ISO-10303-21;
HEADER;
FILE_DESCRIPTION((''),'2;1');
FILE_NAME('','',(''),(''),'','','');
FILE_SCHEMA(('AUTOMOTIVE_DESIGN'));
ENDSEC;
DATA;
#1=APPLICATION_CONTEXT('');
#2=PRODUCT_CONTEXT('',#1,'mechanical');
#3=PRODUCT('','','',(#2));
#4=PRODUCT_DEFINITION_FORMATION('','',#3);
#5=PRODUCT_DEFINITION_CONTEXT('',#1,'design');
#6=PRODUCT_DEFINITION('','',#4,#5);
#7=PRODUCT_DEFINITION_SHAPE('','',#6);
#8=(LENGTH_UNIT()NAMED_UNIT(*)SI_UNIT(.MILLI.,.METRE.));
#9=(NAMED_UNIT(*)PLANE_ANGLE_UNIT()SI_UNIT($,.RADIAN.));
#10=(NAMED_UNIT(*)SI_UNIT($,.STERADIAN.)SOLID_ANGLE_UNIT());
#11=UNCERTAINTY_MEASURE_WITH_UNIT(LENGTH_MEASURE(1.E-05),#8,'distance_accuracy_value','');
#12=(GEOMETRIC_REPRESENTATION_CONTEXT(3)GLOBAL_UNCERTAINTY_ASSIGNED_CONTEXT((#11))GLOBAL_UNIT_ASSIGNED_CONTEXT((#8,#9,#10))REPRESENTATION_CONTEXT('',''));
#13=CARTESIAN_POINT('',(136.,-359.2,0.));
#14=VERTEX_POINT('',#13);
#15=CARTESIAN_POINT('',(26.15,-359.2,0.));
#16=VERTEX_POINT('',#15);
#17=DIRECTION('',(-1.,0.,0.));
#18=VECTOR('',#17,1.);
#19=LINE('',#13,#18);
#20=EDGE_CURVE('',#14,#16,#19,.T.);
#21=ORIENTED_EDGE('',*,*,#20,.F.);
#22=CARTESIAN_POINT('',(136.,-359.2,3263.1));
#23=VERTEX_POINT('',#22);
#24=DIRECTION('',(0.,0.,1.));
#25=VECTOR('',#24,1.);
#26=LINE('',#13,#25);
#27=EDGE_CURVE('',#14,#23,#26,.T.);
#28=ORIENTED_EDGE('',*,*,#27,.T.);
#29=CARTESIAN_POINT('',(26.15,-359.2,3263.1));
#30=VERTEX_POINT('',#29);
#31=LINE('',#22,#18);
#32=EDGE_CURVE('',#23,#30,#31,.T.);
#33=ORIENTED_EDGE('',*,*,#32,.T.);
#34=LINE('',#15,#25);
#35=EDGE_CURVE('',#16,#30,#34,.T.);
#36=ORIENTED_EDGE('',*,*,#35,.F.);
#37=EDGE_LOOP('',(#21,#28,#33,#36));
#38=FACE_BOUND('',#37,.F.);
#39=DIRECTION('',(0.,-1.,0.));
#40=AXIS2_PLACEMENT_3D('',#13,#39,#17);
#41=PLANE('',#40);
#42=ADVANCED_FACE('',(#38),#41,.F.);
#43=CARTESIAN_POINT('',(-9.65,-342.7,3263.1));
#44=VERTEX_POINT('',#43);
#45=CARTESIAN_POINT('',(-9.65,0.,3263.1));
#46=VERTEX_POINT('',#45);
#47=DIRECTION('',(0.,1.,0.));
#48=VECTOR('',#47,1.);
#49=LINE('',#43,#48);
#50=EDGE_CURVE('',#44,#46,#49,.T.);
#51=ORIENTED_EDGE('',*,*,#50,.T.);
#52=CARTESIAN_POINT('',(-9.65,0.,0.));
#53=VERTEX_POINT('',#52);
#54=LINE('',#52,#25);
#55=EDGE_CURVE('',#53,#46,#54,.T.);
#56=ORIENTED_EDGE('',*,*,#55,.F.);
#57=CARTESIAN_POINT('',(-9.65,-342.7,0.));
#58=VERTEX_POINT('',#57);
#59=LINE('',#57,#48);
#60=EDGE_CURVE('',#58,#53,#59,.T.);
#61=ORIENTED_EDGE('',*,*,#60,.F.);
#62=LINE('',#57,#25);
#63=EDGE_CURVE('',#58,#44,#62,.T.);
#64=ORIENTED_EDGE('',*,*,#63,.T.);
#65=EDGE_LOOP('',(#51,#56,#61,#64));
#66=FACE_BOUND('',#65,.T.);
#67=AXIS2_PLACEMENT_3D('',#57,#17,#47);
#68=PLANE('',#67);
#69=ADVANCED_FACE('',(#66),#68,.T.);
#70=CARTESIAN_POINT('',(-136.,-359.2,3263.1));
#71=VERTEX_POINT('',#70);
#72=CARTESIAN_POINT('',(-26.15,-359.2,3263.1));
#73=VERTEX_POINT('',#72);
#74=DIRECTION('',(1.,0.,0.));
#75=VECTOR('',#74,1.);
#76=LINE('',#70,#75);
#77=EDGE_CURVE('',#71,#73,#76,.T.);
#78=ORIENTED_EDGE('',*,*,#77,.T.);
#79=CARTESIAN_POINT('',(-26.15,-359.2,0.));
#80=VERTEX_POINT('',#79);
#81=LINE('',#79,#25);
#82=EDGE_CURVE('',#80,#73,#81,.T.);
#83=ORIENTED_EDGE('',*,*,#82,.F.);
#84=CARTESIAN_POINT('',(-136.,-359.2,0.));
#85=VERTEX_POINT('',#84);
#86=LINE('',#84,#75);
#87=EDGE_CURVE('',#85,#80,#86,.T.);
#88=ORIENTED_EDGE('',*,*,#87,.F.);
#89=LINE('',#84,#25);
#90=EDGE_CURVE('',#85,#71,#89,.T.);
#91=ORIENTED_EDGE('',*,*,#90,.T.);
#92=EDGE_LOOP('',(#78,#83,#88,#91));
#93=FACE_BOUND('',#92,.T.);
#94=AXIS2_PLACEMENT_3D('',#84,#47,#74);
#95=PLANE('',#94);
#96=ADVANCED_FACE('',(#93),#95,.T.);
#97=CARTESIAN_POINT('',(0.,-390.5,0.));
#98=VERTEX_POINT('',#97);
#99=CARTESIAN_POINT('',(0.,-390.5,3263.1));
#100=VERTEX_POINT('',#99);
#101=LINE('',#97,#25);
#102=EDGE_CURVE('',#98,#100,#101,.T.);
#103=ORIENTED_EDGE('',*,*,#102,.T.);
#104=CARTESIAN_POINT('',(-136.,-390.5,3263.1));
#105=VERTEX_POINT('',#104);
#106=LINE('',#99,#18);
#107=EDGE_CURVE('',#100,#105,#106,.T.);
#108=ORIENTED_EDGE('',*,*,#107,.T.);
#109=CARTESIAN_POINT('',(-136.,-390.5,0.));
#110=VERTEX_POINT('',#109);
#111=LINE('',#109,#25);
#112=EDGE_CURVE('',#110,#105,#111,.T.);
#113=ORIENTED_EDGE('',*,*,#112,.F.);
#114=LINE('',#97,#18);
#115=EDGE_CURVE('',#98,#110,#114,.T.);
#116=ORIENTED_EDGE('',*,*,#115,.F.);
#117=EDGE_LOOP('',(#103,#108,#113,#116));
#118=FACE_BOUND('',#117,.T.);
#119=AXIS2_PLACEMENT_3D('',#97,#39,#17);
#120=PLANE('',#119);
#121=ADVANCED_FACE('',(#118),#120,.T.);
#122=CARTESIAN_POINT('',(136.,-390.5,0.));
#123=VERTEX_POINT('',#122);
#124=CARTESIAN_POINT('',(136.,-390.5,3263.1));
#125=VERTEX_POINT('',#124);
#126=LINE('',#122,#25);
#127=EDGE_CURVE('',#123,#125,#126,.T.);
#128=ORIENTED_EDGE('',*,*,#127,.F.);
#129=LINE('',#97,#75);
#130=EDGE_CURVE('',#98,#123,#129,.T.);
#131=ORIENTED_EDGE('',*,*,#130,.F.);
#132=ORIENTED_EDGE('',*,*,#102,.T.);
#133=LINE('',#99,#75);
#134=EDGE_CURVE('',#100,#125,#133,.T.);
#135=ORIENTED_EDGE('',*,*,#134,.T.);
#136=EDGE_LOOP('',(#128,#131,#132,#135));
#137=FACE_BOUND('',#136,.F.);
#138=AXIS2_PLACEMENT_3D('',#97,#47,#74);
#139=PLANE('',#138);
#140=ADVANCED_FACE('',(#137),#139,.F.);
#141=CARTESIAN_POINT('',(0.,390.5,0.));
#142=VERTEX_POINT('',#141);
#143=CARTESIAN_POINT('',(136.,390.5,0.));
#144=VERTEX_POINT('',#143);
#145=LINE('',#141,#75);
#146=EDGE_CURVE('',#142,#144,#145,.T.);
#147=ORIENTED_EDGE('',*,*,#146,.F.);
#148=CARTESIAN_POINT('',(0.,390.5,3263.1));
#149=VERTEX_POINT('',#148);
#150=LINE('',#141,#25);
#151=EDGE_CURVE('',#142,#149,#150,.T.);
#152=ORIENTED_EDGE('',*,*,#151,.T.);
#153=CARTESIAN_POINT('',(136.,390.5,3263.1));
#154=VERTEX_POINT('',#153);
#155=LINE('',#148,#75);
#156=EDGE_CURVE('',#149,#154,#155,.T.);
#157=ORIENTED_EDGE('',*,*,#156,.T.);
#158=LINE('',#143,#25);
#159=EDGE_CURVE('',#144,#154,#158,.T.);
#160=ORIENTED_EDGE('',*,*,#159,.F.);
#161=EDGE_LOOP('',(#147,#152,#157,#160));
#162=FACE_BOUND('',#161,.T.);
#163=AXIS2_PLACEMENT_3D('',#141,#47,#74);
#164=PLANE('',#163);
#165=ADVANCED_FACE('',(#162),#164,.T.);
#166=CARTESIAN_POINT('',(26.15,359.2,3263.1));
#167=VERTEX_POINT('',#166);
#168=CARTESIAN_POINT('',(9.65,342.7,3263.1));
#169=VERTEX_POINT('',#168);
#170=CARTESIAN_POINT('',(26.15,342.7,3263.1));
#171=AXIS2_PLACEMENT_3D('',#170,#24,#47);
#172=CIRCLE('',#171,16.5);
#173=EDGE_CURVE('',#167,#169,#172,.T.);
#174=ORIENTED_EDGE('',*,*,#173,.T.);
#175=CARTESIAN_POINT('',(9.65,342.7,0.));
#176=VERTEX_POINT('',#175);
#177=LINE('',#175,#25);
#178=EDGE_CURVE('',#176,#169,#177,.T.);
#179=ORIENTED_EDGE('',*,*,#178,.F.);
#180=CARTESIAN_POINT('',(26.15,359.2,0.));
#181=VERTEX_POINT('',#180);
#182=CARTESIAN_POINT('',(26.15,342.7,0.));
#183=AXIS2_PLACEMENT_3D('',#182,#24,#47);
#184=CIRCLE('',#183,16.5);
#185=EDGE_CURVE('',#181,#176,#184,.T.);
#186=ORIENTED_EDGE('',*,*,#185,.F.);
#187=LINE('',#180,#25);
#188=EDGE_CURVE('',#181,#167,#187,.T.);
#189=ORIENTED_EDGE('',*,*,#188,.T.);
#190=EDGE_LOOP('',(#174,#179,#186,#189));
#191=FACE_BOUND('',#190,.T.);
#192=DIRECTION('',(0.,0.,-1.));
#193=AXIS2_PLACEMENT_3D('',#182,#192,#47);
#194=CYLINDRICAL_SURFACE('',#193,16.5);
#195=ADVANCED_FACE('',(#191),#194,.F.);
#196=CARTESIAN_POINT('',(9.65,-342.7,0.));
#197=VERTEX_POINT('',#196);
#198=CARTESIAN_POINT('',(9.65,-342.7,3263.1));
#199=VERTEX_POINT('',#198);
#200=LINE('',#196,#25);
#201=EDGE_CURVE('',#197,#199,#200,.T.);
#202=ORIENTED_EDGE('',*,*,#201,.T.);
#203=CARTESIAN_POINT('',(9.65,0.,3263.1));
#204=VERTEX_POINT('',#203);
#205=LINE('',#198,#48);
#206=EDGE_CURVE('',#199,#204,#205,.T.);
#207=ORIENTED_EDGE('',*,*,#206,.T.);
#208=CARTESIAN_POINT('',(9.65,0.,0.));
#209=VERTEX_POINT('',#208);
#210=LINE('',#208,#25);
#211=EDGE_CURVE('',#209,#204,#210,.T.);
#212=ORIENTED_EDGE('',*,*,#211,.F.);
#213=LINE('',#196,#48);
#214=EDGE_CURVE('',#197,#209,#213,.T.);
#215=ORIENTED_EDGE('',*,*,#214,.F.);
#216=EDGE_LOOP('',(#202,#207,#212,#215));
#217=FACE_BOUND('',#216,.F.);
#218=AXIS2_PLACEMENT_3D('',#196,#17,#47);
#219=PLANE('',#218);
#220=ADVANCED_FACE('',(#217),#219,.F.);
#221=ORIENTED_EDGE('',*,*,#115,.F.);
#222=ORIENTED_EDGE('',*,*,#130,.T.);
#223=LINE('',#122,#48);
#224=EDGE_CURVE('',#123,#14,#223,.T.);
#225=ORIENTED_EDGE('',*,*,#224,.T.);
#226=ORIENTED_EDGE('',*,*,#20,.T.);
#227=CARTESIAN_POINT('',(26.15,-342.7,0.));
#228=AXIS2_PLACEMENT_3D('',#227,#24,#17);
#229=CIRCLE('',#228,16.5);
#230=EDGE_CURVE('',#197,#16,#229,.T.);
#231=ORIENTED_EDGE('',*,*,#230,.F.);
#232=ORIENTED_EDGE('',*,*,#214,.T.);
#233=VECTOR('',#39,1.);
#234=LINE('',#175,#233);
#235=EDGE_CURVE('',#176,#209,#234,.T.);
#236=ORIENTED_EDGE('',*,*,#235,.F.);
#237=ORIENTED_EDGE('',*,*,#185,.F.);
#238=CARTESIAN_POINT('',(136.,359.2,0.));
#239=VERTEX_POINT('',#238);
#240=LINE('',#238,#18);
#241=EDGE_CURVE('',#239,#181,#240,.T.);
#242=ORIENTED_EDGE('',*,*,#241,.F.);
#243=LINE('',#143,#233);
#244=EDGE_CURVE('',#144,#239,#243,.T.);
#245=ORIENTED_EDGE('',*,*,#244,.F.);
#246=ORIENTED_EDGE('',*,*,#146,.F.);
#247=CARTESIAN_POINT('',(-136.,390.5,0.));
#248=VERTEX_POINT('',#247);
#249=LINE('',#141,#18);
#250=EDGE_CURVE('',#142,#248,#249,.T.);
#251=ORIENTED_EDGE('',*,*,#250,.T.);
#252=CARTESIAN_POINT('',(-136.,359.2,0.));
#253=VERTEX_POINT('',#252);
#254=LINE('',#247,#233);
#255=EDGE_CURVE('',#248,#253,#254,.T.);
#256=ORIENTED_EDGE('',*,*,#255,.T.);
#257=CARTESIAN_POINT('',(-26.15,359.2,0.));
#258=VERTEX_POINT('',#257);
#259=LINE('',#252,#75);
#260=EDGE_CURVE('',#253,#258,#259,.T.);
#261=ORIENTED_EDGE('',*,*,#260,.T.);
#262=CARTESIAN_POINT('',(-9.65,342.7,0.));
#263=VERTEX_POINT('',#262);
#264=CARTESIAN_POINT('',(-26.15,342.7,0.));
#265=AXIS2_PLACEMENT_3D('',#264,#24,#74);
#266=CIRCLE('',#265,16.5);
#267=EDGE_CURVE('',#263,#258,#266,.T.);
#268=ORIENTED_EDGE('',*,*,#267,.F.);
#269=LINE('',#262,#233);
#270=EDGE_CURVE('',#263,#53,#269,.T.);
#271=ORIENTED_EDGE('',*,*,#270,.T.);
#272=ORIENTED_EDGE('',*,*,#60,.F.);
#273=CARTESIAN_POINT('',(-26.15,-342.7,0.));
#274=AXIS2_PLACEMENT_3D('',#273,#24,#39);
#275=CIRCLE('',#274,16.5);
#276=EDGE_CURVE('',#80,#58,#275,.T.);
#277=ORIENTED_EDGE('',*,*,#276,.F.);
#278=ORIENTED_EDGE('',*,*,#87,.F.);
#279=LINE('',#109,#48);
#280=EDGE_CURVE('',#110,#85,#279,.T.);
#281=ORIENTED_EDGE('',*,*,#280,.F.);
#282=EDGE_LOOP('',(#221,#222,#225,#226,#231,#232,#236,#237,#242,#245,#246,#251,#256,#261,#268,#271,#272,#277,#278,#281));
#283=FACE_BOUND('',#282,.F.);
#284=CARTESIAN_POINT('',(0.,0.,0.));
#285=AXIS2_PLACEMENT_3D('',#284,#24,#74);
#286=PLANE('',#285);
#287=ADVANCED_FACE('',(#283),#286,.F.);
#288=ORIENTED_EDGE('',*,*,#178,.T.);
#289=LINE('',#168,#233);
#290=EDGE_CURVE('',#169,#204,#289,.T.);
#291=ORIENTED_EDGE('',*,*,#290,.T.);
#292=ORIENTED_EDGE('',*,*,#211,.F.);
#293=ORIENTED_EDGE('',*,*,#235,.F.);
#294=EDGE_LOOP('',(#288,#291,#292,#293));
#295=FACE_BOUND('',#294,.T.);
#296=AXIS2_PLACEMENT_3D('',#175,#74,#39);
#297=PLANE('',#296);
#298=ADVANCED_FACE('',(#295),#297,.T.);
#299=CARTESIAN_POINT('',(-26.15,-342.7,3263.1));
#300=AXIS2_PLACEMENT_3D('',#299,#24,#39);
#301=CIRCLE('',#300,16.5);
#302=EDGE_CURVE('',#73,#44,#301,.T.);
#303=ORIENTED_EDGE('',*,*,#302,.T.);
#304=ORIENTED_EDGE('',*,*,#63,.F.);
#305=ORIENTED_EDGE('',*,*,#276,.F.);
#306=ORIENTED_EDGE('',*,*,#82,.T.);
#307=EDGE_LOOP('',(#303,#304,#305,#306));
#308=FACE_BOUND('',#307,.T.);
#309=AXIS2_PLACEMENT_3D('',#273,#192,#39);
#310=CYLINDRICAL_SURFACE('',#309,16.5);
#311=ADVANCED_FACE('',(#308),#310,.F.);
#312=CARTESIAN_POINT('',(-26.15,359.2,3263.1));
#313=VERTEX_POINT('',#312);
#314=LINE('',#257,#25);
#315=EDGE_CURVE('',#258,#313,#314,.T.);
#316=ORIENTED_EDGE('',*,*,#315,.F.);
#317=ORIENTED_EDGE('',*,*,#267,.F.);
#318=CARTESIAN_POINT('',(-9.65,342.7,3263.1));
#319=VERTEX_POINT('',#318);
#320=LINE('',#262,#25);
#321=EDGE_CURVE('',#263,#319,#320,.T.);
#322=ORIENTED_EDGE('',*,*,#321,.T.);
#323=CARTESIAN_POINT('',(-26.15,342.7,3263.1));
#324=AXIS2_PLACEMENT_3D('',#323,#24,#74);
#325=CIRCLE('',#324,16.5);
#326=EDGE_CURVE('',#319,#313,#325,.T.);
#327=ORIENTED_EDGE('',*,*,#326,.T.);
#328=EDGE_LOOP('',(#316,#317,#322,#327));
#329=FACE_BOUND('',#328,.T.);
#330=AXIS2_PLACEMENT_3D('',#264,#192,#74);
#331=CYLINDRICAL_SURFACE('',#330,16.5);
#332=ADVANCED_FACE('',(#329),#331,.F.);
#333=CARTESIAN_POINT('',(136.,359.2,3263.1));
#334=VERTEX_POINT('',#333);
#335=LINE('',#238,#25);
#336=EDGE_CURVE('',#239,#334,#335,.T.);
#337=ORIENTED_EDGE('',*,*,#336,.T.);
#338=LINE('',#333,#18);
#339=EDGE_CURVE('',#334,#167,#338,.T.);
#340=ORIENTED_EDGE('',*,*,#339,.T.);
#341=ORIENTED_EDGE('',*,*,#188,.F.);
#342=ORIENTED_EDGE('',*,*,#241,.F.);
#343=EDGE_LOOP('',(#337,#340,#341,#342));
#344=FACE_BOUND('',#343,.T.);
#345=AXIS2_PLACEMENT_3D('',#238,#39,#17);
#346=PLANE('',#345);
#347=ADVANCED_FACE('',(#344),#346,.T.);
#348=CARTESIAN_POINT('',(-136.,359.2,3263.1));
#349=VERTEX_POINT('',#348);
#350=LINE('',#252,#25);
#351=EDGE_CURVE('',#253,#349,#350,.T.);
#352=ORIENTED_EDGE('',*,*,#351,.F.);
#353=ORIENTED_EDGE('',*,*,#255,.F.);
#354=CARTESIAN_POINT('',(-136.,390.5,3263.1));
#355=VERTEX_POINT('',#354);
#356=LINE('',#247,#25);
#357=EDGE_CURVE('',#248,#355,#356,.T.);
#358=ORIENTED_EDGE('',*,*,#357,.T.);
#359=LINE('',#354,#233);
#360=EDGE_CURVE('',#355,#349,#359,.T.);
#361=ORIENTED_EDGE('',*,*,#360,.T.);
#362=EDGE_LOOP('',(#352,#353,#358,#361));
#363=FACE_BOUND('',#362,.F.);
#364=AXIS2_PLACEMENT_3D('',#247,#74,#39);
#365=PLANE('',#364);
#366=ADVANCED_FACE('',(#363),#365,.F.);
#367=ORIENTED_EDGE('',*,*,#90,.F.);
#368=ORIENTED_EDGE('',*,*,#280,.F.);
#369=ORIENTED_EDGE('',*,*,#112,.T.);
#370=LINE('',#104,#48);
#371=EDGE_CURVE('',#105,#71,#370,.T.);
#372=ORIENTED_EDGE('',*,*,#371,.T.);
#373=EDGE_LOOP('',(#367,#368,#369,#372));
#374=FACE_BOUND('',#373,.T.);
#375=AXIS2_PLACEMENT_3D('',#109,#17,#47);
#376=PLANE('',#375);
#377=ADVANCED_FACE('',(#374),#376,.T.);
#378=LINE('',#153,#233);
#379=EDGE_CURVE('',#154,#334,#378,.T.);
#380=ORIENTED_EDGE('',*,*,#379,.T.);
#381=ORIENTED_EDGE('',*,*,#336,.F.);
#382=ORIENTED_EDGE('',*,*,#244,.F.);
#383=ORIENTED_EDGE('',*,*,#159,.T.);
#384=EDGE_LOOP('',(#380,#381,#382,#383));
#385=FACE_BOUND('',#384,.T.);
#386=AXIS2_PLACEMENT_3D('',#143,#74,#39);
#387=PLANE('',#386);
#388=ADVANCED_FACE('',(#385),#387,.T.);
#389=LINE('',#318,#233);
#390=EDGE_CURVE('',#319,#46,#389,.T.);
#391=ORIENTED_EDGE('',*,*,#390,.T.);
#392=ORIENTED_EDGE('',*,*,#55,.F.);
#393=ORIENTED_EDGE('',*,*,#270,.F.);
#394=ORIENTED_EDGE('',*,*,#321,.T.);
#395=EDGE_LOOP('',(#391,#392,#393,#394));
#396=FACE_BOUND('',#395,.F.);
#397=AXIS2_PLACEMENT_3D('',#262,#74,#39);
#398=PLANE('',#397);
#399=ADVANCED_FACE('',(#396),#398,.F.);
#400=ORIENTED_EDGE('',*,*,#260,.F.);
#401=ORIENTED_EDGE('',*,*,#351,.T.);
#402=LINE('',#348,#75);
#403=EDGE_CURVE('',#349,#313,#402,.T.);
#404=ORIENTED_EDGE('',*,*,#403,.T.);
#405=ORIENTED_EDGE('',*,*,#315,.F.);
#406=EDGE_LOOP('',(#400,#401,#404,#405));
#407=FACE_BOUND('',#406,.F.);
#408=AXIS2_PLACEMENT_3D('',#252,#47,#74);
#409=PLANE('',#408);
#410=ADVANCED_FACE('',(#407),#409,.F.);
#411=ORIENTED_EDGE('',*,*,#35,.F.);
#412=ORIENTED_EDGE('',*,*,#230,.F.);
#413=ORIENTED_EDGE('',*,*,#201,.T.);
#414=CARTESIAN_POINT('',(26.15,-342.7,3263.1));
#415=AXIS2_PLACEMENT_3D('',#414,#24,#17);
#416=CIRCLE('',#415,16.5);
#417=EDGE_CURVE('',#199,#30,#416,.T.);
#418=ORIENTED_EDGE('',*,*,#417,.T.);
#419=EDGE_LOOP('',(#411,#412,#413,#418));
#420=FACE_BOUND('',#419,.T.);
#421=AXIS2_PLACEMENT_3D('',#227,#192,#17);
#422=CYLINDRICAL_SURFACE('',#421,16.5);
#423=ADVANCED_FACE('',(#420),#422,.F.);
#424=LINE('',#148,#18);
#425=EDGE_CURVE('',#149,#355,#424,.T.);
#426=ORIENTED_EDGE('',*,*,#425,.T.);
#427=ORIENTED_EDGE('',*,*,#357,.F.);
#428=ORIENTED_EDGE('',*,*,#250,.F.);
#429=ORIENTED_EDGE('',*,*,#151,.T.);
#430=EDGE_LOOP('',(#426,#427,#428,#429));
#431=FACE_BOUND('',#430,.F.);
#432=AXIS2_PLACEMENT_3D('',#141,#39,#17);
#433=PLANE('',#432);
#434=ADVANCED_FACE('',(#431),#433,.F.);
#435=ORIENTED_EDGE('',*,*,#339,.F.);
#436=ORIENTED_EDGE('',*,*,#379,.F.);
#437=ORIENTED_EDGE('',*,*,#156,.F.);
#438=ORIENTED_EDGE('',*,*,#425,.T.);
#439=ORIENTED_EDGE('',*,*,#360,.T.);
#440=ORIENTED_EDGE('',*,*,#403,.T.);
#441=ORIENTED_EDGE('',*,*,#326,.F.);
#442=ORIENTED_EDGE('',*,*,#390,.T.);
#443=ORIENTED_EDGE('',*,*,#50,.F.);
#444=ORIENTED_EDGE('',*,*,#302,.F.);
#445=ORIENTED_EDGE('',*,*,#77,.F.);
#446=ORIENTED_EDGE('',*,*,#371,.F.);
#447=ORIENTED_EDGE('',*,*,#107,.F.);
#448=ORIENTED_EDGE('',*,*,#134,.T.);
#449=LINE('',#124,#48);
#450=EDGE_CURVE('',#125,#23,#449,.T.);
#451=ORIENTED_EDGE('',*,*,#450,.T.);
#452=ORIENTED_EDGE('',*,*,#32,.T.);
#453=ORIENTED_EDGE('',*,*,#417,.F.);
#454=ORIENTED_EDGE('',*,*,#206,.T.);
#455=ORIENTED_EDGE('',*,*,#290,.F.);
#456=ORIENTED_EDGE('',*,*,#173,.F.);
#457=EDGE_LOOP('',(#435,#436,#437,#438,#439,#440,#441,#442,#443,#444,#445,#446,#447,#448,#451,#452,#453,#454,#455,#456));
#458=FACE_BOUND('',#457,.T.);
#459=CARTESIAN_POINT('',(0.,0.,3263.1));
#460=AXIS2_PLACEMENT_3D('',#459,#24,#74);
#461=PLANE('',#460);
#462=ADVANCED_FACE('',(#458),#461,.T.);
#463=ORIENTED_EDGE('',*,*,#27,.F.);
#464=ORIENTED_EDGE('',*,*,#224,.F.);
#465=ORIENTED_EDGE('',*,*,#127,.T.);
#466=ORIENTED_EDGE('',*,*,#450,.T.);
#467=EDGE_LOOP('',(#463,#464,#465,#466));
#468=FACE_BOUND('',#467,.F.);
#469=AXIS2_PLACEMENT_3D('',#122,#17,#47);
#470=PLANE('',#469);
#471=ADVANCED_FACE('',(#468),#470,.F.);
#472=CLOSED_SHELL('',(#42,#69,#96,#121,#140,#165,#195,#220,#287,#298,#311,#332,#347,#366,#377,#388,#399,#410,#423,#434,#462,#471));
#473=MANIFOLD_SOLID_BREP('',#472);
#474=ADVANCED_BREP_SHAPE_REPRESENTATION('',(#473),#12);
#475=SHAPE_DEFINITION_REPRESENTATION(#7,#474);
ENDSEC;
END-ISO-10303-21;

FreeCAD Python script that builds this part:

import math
import FreeCAD as App
import Part
import Sketcher

V = App.Vector

doc = App.newDocument("Part")
body = doc.addObject("PartDesign::Body", "Body")

# Sketch on XY plane
sketch1 = body.newObject("Sketcher::SketchObject", "Sketch")
sketch1.AttachmentSupport = (doc.getObject("XY_Plane"), [""])
sketch1.MapMode = "FlatFace"
sketch1.addGeometry([
    Part.LineSegment(V(-136, -359.2, 0), V(-136, -390.5, 0)),  # 0
    Part.LineSegment(V(-136, -390.5, 0), V(136, -390.5, 0)),  # 1
    Part.LineSegment(V(136, -390.5, 0), V(136, -359.2, 0)),  # 2
    Part.LineSegment(V(136, -359.2, 0), V(26.15, -359.2, 0)),  # 3
    Part.ArcOfCircle(Part.Circle(V(26.15, -342.7, 0), V(0, 0, 1), 16.5), math.radians(180), math.radians(270)),  # 4
    Part.LineSegment(V(9.65, -342.7, 0), V(9.65, 342.7, 0)),  # 5
    Part.ArcOfCircle(Part.Circle(V(26.15, 342.7, 0), V(0, 0, 1), 16.5), math.radians(90), math.radians(180)),  # 6
    Part.LineSegment(V(26.15, 359.2, 0), V(136, 359.2, 0)),  # 7
    Part.LineSegment(V(136, 359.2, 0), V(136, 390.5, 0)),  # 8
    Part.LineSegment(V(136, 390.5, 0), V(-136, 390.5, 0)),  # 9
    Part.LineSegment(V(-136, 390.5, 0), V(-136, 359.2, 0)),  # 10
    Part.LineSegment(V(-136, 359.2, 0), V(-26.15, 359.2, 0)),  # 11
    Part.ArcOfCircle(Part.Circle(V(-26.15, 342.7, 0), V(0, 0, 1), 16.5), math.radians(0), math.radians(90)),  # 12
    Part.LineSegment(V(-9.65, 342.7, 0), V(-9.65, -342.7, 0)),  # 13
    Part.ArcOfCircle(Part.Circle(V(-26.15, -342.7, 0), V(0, 0, 1), 16.5), math.radians(-90), math.radians(0)),  # 14
    Part.LineSegment(V(-26.15, -359.2, 0), V(-136, -359.2, 0)),  # 15
], False)
sketch1.addConstraint([
    Sketcher.Constraint("Coincident", 0, 2, 1, 1),
    Sketcher.Constraint("Coincident", 1, 2, 2, 1),
    Sketcher.Constraint("Coincident", 2, 2, 3, 1),
    Sketcher.Constraint("Tangent", 3, 2, 4, 2),
    Sketcher.Constraint("Tangent", 4, 1, 5, 1),
    Sketcher.Constraint("Tangent", 5, 2, 6, 2),
    Sketcher.Constraint("Tangent", 6, 1, 7, 1),
    Sketcher.Constraint("Coincident", 7, 2, 8, 1),
    Sketcher.Constraint("Coincident", 8, 2, 9, 1),
    Sketcher.Constraint("Coincident", 9, 2, 10, 1),
    Sketcher.Constraint("Coincident", 10, 2, 11, 1),
    Sketcher.Constraint("Tangent", 11, 2, 12, 2),
    Sketcher.Constraint("Tangent", 12, 1, 13, 1),
    Sketcher.Constraint("Tangent", 13, 2, 14, 2),
    Sketcher.Constraint("Tangent", 14, 1, 15, 1),
    Sketcher.Constraint("Coincident", 15, 2, 0, 1),
    Sketcher.Constraint("Vertical", 0),
    Sketcher.Constraint("Horizontal", 1),
    Sketcher.Constraint("Vertical", 2),
    Sketcher.Constraint("Horizontal", 3),
    Sketcher.Constraint("Vertical", 5),
    Sketcher.Constraint("Horizontal", 7),
    Sketcher.Constraint("Vertical", 8),
    Sketcher.Constraint("Horizontal", 9),
    Sketcher.Constraint("Vertical", 10),
    Sketcher.Constraint("Horizontal", 11),
    Sketcher.Constraint("Vertical", 13),
    Sketcher.Constraint("Horizontal", 15),
    Sketcher.Constraint("Equal", 4, 6),
    Sketcher.Constraint("Equal", 6, 12),
    Sketcher.Constraint("Equal", 12, 14),
    Sketcher.Constraint("Symmetric", 4, 3, 12, 3, -1, 1),
    Sketcher.Constraint("Symmetric", 0, 2, 8, 2, -1, 1),
    Sketcher.Constraint("Symmetric", 7, 2, 10, 2, -2),
    Sketcher.Constraint("Symmetric", 2, 2, 15, 2, -2),
    Sketcher.Constraint("Radius", 4, 16.5),
    Sketcher.Constraint("DistanceY", 0, 2, 0, 1, 31.3),
    Sketcher.Constraint("DistanceX", 0, 2, -1, 1, 136.0),
    Sketcher.Constraint("DistanceY", 0, 2, -1, 1, 390.5),
    Sketcher.Constraint("DistanceX", -1, 1, 4, 1, 9.65),
])
pad1 = body.newObject("PartDesign::Pad", "Pad")
pad1.Profile = sketch1
pad1.Length = 3263.1

doc.recompute()
